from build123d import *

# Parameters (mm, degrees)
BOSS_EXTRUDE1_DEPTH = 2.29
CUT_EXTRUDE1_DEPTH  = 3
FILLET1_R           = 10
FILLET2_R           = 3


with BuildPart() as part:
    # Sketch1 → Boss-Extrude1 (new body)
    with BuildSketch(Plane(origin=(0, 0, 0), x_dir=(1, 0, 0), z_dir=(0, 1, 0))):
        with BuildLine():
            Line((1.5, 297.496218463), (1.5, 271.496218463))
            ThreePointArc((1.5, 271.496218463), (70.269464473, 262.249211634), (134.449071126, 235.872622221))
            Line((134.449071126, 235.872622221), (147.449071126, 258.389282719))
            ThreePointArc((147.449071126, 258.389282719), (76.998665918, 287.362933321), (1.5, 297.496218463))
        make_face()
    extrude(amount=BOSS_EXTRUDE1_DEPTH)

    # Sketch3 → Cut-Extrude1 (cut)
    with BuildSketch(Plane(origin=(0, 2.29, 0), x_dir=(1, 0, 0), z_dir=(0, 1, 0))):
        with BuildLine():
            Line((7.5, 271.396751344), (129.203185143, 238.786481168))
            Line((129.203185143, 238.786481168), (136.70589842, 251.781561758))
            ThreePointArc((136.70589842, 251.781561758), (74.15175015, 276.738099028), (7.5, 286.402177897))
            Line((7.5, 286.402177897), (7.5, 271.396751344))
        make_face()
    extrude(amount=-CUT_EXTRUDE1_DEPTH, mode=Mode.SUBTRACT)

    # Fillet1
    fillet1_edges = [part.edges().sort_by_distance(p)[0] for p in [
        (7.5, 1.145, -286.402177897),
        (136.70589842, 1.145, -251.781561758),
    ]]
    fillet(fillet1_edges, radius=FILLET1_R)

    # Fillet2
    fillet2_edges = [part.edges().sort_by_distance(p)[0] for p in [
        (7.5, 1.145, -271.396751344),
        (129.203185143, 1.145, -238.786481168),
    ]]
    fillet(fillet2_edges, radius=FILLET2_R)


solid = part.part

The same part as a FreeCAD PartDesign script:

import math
import FreeCAD as App
import Part
import Sketcher
from FreeCAD import Vector
Q = App.Units.Quantity


def edges_at(feature, points):
    """Names of the edges that pass closest to the given points."""
    edges = feature.Shape.Edges
    near = lambda p: min(range(len(edges)), key=lambda i: edges[i].distToShape(Part.Vertex(*p))[0])
    return sorted({f"Edge{near(p) + 1}" for p in points})

doc = App.newDocument("Part")
params = doc.addObject("Spreadsheet::Sheet", "Params")
for row, (alias, value) in enumerate([
    ("sketch1_radius", "297.5 mm"),
    ("sketch1_height", "26 mm"),
    ("pad1_length", "2.29 mm"),
    ("pocket1_length", "3 mm"),
    ("fillet_radius", "10 mm"),
    ("fillet2_radius", "3 mm"),
], start=1):
    params.set(f"A{row}", alias)
    params.set(f"B{row}", "=" + value)
    params.setAlias(f"B{row}", alias)

body = doc.addObject("PartDesign::Body", "Body")

# Sketch on XZ plane
sketch1 = body.newObject("Sketcher::SketchObject", "Sketch")
sketch1.AttachmentSupport = (doc.getObject("XZ_Plane"), [""])
sketch1.MapMode = "FlatFace"
sketch1.addGeometry([
    Part.LineSegment(Vector(2, -297, 0), Vector(2, -271, 0)),
    Part.ArcOfCircle(Part.Circle(Vector(0, 0, 0), Vector(0, 0, 1), 272), math.radians(-90), math.radians(-60)),
    Part.LineSegment(Vector(134, -236, 0), Vector(147, -258, 0)),
    Part.ArcOfCircle(Part.Circle(Vector(0, 0, 0), Vector(0, 0, 1), 297), math.radians(-90), math.radians(-60)),
], False)
sketch1.addConstraint([
    Sketcher.Constraint("Coincident", 0, 2, 1, 1),
    Sketcher.Constraint("Coincident", 1, 2, 2, 1),
    Sketcher.Constraint("Coincident", 2, 2, 3, 2),
    Sketcher.Constraint("Coincident", 3, 1, 0, 1),
    Sketcher.Constraint("Vertical", 0),
    Sketcher.Constraint("Coincident", 1, 3, -1, 1),
    Sketcher.Constraint("Coincident", 3, 3, -1, 1),
    Sketcher.Constraint("Radius", 3, Q("297.5 mm")),
    Sketcher.Constraint("DistanceY", 0, 1, 0, 2, Q("26 mm")),
    Sketcher.Constraint("Angle", 2, Q("-60 deg")),
    Sketcher.Constraint("DistanceX", -1, 1, 0, 2, Q("1.5 mm")),
    Sketcher.Constraint("DistanceX", -1, 1, 1, 2, Q("134.449071 mm")),
])
sketch1.setExpression("Constraints[7]", "Params.sketch1_radius")
sketch1.setExpression("Constraints[8]", "Params.sketch1_height")
pad1 = body.newObject("PartDesign::Pad", "Pad")
pad1.Profile = sketch1
pad1.setExpression("Length", "Params.pad1_length")
pad1.Reversed = True

# Sketch on XZ plane
sketch2 = body.newObject("Sketcher::SketchObject", "Sketch001")
sketch2.AttachmentSupport = (doc.getObject("XZ_Plane"), [""])
sketch2.MapMode = "FlatFace"
sketch2.AttachmentOffset = App.Placement(Vector(0, 0, -2.29), App.Rotation())
sketch2.addGeometry([
    Part.LineSegment(Vector(8, -271, 0), Vector(129, -239, 0)),
    Part.LineSegment(Vector(129, -239, 0), Vector(137, -252, 0)),
    Part.ArcOfCircle(Part.Circle(Vector(0, 0, 0), Vector(0, 0, 1), 287), math.radians(-88), math.radians(-62)),
    Part.LineSegment(Vector(8, -286, 0), Vector(8, -271, 0)),
], False)
sketch2.addConstraint([
    Sketcher.Constraint("Coincident", 0, 2, 1, 1),
    Sketcher.Constraint("Coincident", 1, 2, 2, 2),
    Sketcher.Constraint("Coincident", 2, 1, 3, 1),
    Sketcher.Constraint("Coincident", 3, 2, 0, 1),
    Sketcher.Constraint("Vertical", 3),
    Sketcher.Constraint("Coincident", 2, 3, -1, 1),
    Sketcher.Constraint("Angle", 0, Q("15 deg")),
    Sketcher.Constraint("Angle", 1, Q("-60 deg")),
    Sketcher.Constraint("DistanceX", -1, 1, 3, 2, Q("7.5 mm")),
    Sketcher.Constraint("Radius", 2, Q("286.500362 mm")),
    Sketcher.Constraint("DistanceX", -1, 1, 1, 2, Q("136.705898 mm")),
    Sketcher.Constraint("Distance", 0, Q("125.996409 mm")),
])
pocket1 = body.newObject("PartDesign::Pocket", "Pocket")
pocket1.Profile = sketch2
pocket1.setExpression("Length", "Params.pocket1_length")
pocket1.Reversed = True
doc.recompute()

fillet = body.newObject("PartDesign::Fillet", "Fillet")
fillet.Base = (pocket1, edges_at(pocket1, [(7.5, 1.145, -286.402), (136.706, 1.145, -251.782)]))
fillet.setExpression("Radius", "Params.fillet_radius")
doc.recompute()

fillet2 = body.newObject("PartDesign::Fillet", "Fillet001")
fillet2.Base = (fillet, edges_at(fillet, [(7.5, 1.145, -271.397), (129.203, 1.145, -238.786)]))
fillet2.setExpression("Radius", "Params.fillet2_radius")

doc.recompute()
